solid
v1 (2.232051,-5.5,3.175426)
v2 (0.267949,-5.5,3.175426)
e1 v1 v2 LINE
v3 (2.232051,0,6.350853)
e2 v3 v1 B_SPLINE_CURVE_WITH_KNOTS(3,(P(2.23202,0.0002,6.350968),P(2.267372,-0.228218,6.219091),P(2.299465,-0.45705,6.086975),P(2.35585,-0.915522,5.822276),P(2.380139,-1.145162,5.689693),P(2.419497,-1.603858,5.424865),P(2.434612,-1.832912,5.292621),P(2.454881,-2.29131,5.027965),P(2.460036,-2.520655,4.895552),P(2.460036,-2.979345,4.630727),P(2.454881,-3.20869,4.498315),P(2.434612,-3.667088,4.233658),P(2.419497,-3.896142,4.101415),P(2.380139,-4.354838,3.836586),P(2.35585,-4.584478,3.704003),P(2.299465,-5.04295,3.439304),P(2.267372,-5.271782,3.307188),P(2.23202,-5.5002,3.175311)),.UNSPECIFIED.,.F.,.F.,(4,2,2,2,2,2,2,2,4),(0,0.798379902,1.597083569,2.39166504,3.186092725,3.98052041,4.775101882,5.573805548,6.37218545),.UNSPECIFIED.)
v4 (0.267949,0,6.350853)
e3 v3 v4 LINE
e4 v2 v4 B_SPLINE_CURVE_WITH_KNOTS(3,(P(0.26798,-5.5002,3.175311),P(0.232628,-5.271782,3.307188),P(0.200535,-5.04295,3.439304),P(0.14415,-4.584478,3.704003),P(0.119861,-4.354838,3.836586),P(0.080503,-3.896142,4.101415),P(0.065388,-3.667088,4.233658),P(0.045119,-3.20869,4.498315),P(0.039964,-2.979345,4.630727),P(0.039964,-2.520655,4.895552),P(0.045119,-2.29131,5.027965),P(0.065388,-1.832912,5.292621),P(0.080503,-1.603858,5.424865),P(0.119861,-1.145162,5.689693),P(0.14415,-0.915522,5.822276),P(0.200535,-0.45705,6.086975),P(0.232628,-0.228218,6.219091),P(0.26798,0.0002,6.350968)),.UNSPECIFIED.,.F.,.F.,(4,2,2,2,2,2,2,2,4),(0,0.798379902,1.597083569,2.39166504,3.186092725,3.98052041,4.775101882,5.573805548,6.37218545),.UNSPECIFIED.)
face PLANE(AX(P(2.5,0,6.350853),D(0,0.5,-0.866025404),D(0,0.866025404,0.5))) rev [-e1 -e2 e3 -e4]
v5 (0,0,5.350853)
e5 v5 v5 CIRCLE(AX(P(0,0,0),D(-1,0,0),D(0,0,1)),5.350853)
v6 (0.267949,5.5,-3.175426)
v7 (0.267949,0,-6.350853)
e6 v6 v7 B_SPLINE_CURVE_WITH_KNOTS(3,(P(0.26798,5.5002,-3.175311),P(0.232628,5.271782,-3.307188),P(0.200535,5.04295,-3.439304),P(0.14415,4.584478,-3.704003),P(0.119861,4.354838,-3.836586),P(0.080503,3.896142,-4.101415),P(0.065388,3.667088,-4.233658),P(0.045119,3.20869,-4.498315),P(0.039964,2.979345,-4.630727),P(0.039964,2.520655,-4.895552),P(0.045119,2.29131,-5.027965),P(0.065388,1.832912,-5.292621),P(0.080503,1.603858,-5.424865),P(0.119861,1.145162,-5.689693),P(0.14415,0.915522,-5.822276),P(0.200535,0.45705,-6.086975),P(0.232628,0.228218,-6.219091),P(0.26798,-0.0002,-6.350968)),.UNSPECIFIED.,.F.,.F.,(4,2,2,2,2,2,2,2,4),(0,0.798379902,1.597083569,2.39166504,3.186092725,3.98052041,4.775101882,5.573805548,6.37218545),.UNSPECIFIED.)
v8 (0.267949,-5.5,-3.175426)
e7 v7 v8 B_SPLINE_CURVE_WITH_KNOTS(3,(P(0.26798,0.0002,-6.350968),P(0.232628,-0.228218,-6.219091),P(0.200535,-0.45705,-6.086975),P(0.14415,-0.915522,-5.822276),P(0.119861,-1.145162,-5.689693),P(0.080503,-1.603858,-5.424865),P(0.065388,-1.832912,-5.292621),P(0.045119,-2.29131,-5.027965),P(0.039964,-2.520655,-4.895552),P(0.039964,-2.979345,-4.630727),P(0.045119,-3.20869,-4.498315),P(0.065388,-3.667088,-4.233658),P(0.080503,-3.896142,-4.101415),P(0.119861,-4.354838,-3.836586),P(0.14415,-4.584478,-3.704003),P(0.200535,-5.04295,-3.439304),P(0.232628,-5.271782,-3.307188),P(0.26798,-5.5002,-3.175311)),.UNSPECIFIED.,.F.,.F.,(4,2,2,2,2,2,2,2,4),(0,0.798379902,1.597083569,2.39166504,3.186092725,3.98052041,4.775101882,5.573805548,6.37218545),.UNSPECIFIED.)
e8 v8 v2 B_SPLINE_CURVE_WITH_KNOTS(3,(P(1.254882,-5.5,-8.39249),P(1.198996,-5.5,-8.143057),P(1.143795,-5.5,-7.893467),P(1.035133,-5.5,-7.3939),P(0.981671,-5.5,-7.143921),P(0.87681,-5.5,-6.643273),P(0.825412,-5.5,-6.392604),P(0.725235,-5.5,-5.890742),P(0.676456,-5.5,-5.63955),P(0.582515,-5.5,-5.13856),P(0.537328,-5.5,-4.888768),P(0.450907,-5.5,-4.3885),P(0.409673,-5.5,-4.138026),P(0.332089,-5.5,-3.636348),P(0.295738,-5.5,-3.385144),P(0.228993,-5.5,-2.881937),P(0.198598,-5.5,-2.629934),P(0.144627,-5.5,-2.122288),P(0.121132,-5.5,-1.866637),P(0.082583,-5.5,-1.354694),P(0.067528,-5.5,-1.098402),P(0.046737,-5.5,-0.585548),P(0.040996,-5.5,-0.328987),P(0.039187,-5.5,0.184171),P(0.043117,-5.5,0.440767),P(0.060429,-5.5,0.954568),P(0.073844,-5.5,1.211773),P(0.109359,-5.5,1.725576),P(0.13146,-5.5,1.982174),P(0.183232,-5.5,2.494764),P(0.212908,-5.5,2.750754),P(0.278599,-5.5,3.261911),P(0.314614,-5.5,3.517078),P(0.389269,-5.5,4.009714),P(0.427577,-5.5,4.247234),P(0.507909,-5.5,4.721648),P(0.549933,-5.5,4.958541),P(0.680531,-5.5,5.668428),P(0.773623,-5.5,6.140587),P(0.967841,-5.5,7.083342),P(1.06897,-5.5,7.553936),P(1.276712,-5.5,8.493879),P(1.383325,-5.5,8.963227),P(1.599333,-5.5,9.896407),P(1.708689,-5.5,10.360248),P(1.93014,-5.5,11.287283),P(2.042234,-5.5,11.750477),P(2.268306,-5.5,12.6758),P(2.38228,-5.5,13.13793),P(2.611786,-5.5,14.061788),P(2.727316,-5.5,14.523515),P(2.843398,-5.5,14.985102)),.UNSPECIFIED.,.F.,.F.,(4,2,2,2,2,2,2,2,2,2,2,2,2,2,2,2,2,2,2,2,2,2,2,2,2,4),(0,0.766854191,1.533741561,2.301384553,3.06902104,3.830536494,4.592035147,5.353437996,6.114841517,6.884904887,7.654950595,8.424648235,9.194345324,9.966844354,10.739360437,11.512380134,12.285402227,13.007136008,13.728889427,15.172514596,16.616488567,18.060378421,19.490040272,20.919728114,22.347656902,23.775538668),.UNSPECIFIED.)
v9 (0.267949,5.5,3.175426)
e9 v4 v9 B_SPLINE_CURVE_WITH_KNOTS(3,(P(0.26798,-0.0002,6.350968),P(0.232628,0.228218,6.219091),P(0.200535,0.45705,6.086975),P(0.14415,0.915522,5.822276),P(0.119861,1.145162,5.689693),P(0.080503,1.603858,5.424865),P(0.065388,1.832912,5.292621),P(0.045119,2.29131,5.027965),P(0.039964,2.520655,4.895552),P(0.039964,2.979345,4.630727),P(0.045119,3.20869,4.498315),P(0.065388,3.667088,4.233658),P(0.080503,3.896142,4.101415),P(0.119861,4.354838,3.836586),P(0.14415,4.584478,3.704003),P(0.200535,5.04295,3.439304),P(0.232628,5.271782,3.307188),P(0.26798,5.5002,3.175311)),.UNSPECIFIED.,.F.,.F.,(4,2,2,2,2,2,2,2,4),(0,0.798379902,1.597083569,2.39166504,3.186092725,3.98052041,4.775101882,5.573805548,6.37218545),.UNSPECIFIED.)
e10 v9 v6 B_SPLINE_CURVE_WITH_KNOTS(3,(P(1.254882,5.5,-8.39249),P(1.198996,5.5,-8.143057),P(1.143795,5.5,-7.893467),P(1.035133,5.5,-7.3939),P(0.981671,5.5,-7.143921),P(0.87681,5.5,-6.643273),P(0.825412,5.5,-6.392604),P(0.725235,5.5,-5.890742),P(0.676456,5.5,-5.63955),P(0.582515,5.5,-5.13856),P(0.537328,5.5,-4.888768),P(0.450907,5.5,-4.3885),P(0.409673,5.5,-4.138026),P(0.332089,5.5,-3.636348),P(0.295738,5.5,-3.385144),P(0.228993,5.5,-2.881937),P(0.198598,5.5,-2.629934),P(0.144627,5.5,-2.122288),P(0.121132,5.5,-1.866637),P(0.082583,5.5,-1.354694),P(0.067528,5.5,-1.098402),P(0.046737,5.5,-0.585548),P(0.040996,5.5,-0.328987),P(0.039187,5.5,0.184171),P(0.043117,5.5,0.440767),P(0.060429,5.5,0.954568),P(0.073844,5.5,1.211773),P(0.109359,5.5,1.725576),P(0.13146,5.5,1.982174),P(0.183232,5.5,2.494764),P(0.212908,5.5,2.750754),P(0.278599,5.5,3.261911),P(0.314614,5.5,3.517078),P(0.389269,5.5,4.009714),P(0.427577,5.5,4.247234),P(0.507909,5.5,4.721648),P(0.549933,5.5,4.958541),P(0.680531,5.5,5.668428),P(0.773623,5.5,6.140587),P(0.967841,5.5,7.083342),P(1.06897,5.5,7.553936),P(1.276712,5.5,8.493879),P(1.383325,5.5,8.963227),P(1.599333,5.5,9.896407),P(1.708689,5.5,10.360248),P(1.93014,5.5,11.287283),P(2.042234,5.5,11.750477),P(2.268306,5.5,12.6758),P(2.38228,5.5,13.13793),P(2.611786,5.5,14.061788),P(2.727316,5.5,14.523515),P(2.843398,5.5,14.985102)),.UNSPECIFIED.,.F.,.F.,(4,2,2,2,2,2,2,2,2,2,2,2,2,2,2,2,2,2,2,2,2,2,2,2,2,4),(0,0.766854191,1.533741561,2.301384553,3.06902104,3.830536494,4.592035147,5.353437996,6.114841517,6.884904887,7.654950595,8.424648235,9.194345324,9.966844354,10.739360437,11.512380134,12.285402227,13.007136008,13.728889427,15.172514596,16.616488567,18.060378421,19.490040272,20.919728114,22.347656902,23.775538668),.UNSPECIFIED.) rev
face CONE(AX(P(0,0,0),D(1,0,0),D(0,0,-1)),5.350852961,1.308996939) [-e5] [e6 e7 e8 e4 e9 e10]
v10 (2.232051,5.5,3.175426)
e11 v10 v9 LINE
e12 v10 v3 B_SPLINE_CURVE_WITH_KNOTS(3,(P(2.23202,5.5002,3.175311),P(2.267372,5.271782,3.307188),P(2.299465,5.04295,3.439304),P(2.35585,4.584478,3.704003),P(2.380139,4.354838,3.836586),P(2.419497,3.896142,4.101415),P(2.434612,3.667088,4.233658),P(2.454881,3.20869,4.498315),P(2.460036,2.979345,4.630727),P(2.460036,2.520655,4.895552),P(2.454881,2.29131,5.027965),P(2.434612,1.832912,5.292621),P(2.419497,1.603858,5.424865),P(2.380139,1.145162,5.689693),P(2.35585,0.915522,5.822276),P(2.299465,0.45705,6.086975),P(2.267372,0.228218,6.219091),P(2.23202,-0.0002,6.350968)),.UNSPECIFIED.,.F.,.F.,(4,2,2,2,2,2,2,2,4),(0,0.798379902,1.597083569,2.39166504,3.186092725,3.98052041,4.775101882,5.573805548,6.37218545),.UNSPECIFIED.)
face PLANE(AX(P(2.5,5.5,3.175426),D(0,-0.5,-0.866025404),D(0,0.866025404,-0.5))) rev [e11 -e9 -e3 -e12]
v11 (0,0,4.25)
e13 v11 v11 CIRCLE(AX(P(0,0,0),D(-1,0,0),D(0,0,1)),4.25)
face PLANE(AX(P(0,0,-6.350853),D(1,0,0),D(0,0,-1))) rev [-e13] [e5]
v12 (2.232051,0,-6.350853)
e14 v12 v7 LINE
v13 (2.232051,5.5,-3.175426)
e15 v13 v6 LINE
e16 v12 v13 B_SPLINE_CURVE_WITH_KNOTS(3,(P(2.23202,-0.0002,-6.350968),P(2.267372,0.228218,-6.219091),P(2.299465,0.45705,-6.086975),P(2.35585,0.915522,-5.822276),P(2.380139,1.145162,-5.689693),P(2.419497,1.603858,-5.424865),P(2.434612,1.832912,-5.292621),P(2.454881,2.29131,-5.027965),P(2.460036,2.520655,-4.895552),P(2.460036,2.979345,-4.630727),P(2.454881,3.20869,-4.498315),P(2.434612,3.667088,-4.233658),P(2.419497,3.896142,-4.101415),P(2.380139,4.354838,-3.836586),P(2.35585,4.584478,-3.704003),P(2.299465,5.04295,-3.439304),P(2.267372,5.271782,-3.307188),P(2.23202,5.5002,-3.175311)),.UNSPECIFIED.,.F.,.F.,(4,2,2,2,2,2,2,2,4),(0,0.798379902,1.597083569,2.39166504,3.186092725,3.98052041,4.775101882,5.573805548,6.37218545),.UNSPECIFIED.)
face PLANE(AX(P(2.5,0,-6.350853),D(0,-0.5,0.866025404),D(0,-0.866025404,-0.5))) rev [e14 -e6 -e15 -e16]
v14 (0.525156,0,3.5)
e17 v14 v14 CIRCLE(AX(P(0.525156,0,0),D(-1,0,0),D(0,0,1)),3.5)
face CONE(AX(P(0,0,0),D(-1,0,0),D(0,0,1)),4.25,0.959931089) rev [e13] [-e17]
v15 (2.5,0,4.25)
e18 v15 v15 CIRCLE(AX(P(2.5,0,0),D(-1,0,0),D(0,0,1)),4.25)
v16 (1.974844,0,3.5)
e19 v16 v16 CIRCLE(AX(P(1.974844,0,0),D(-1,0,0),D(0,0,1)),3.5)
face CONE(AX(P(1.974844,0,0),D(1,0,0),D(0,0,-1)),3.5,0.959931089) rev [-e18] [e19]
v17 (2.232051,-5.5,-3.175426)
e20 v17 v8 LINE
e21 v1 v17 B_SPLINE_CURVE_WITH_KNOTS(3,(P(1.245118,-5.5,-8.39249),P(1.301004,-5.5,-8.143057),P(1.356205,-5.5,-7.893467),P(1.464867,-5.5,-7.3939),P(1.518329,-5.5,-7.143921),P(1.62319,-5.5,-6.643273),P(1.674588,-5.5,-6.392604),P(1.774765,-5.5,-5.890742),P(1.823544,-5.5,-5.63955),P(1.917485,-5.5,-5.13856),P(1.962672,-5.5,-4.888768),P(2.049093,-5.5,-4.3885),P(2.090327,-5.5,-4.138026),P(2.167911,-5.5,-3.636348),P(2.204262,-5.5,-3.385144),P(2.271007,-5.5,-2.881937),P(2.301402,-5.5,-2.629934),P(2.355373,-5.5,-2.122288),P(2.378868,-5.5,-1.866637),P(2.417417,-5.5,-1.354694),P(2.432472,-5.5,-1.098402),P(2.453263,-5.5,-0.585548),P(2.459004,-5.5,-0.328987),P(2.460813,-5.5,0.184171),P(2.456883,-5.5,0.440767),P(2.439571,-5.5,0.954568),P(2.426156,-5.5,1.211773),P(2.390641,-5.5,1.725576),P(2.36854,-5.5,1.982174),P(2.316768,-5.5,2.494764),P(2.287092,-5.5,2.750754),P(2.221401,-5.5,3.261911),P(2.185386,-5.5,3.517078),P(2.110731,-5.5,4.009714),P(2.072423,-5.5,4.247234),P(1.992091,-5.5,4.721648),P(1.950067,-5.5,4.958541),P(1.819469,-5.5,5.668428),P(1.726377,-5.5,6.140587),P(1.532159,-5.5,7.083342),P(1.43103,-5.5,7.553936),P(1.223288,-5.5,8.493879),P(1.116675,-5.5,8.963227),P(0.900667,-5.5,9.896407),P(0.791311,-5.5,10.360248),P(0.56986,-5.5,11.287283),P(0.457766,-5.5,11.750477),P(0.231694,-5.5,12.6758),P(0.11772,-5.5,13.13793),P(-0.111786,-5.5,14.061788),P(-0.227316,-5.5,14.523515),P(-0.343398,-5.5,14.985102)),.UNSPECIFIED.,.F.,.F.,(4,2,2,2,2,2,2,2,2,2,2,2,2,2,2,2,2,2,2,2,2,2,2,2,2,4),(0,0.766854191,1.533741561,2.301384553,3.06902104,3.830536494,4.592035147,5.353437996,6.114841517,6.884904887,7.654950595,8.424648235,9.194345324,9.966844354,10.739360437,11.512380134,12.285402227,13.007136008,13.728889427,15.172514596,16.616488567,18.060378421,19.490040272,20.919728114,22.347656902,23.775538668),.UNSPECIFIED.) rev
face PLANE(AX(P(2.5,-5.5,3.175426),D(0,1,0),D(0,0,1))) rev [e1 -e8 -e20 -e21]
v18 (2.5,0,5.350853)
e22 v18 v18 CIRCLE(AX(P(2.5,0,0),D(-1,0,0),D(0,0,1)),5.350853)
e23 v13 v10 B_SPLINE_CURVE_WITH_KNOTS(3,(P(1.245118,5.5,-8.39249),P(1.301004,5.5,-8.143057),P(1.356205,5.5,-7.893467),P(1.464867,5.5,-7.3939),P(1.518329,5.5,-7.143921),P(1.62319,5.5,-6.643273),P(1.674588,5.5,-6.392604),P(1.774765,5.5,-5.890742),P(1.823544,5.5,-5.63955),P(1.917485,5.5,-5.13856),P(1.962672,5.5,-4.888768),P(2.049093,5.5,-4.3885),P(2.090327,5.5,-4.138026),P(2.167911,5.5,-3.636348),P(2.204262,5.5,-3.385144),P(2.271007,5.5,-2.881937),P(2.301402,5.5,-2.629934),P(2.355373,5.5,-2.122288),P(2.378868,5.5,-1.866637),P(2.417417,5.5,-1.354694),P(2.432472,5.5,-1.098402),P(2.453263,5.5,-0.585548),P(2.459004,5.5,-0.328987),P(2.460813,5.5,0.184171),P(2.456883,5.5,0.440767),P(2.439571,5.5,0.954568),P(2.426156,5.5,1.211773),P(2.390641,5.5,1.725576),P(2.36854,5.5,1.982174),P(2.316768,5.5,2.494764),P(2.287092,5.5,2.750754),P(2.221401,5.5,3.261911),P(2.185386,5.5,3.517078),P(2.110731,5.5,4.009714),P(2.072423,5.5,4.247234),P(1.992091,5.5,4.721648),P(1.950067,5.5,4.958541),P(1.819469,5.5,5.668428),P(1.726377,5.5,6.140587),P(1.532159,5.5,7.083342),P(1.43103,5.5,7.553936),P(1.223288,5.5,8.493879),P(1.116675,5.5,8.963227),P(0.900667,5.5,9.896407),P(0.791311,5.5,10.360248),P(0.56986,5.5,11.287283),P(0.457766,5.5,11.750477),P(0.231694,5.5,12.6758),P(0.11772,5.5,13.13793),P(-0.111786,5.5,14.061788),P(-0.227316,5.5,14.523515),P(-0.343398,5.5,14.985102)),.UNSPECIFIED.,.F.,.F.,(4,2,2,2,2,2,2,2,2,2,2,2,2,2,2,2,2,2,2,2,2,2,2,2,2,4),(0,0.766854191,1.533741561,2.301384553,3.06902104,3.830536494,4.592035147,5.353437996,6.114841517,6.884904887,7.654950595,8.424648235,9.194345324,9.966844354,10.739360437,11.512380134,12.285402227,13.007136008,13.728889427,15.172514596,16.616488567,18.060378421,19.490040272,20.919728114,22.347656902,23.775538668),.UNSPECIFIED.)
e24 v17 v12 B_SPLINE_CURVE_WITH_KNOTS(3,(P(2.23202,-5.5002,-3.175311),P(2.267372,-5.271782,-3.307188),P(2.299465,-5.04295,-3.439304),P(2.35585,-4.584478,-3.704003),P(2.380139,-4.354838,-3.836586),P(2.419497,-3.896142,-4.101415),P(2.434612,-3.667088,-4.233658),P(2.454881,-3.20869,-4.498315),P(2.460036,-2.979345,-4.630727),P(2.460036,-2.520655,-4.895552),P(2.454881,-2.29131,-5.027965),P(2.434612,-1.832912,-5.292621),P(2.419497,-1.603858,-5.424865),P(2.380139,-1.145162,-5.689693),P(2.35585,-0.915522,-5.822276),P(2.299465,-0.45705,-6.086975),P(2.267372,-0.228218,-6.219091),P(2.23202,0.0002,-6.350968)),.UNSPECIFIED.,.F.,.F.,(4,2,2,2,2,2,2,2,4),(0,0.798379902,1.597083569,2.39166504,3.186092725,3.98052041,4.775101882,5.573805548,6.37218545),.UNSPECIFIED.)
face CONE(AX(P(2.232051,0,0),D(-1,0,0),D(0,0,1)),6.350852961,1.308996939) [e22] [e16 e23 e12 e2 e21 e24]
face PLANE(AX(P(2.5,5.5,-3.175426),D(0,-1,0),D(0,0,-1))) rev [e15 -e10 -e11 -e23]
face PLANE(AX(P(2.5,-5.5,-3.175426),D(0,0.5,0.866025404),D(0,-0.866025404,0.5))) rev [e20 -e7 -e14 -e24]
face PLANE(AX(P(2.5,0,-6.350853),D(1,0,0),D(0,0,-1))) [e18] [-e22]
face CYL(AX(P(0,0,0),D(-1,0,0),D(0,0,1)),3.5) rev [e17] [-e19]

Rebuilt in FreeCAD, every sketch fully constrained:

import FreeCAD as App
import Part
import Sketcher

V = App.Vector
Q = App.Units.Quantity


def add_polygon(sketch, points):
    """Adds a closed chain of lines whose ends are joined by coincident constraints."""
    first, n = sketch.GeometryCount, len(points)
    for a, b in zip(points, points[1:] + points[:1]):
        sketch.addGeometry(Part.LineSegment(App.Vector(*a, 0), App.Vector(*b, 0)), False)
    for i in range(n):
        sketch.addConstraint(Sketcher.Constraint("Coincident", first + i, 2, first + (i + 1) % n, 1))

doc = App.newDocument("Part")
body = doc.addObject("PartDesign::Body", "Body")

# Sketch on YZ plane
sketch1 = doc.addObject("Sketcher::SketchObject", "Sketch")
body.addObject(sketch1)
sketch1.AttachmentSupport = (doc.YZ_Plane, [""])
sketch1.MapMode = "FlatFace"
add_polygon(sketch1, [(0, -6), (6, -3), (6, 3), (0, 6), (-6, 3), (-6, -3)])  # lines 0-5
sketch1.addConstraint([
    Sketcher.Constraint("Vertical", 1),
    Sketcher.Constraint("Vertical", 4),
    Sketcher.Constraint("Symmetric", 0, 2, 3, 2, -1, 1),
    Sketcher.Constraint("Symmetric", 2, 2, 5, 2, -1, 1),
    Sketcher.Constraint("PointOnObject", 2, 2, -2),
    Sketcher.Constraint("Parallel", 2, 5),
    Sketcher.Constraint("Horizontal", 1, 2, 3, 2),
    Sketcher.Constraint("Angle", 0, Q("30 deg")),
    Sketcher.Constraint("DistanceX", 3, 2, 1, 2, Q("11 mm")),
    Sketcher.Constraint("DistanceY", 1, 1, 1, 2, Q("6.350853 mm")),
])
pad1 = doc.addObject("PartDesign::Pad", "Pad")
body.addObject(pad1)
pad1.Profile = sketch1
pad1.Length = 2.5

# Sketch on XZ plane
sketch2 = doc.addObject("Sketcher::SketchObject", "Sketch001")
body.addObject(sketch2)
sketch2.AttachmentSupport = (doc.XZ_Plane, [""])
sketch2.MapMode = "FlatFace"
add_polygon(sketch2, [(0, -5.4), (0.3, -6.4), (2.2, -6.4), (2.5, -5.4), (4.6, -5.4), (4.6, -7.8), (-1.9, -7.8), (-1.9, -5.4)])  # lines 0-7
sketch2.addConstraint([
    Sketcher.Constraint("Horizontal", 1),
    Sketcher.Constraint("Horizontal", 3),
    Sketcher.Constraint("Vertical", 4),
    Sketcher.Constraint("Horizontal", 5),
    Sketcher.Constraint("Vertical", 6),
    Sketcher.Constraint("Horizontal", 7),
    Sketcher.Constraint("PointOnObject", 7, 2, -2),
    Sketcher.Constraint("Horizontal", 3, 2, 6, 2),
    Sketcher.Constraint("Equal", 0, 2),
    Sketcher.Constraint("Angle", 0, Q("-75 deg")),
    Sketcher.Constraint("DistanceY", 1, 2, 2, 2, Q("1 mm")),
    Sketcher.Constraint("DistanceX", -1, 1, 2, 2, Q("2.5 mm")),
    Sketcher.Constraint("DistanceX", 5, 2, 5, 1, Q("6.485129 mm")),
    Sketcher.Constraint("DistanceX", 3, 1, 3, 2, Q("2.077096 mm")),
    Sketcher.Constraint("DistanceY", 4, 2, 4, 1, Q("2.448243 mm")),
    Sketcher.Constraint("DistanceY", 0, 2, -1, 1, Q("6.350853 mm")),
])
groove = doc.addObject("PartDesign::Groove", "Groove")
body.addObject(groove)
groove.Profile = sketch2
groove.ReferenceAxis = (sketch2, ["H_Axis"])
groove.Angle = 360

# Sketch on XZ plane
sketch3 = doc.addObject("Sketcher::SketchObject", "Sketch002")
body.addObject(sketch3)
sketch3.AttachmentSupport = (doc.XZ_Plane, [""])
sketch3.MapMode = "FlatFace"
add_polygon(sketch3, [(2.5, 0), (0, 0), (0, 4.2), (0.5, 3.5), (2, 3.5), (2.5, 4.2)])  # lines 0-5
sketch3.addConstraint([
    Sketcher.Constraint("Horizontal", 0),
    Sketcher.Constraint("Vertical", 1),
    Sketcher.Constraint("Horizontal", 3),
    Sketcher.Constraint("Vertical", 5),
    Sketcher.Constraint("Coincident", 0, 2, -1, 1),
    Sketcher.Constraint("Horizontal", 1, 2, 4, 2),
    Sketcher.Constraint("Equal", 2, 4),
    Sketcher.Constraint("Angle", 2, Q("-55 deg")),
    Sketcher.Constraint("DistanceX", 0, 2, 0, 1, Q("2.5 mm")),
    Sketcher.Constraint("DistanceY", 1, 1, 1, 2, Q("4.25 mm")),
    Sketcher.Constraint("DistanceY", -1, 1, 2, 2, Q("3.5 mm")),
])
groove2 = doc.addObject("PartDesign::Groove", "Groove001")
body.addObject(groove2)
groove2.Profile = sketch3
groove2.ReferenceAxis = (sketch3, ["H_Axis"])
groove2.Angle = 360

doc.recompute()
